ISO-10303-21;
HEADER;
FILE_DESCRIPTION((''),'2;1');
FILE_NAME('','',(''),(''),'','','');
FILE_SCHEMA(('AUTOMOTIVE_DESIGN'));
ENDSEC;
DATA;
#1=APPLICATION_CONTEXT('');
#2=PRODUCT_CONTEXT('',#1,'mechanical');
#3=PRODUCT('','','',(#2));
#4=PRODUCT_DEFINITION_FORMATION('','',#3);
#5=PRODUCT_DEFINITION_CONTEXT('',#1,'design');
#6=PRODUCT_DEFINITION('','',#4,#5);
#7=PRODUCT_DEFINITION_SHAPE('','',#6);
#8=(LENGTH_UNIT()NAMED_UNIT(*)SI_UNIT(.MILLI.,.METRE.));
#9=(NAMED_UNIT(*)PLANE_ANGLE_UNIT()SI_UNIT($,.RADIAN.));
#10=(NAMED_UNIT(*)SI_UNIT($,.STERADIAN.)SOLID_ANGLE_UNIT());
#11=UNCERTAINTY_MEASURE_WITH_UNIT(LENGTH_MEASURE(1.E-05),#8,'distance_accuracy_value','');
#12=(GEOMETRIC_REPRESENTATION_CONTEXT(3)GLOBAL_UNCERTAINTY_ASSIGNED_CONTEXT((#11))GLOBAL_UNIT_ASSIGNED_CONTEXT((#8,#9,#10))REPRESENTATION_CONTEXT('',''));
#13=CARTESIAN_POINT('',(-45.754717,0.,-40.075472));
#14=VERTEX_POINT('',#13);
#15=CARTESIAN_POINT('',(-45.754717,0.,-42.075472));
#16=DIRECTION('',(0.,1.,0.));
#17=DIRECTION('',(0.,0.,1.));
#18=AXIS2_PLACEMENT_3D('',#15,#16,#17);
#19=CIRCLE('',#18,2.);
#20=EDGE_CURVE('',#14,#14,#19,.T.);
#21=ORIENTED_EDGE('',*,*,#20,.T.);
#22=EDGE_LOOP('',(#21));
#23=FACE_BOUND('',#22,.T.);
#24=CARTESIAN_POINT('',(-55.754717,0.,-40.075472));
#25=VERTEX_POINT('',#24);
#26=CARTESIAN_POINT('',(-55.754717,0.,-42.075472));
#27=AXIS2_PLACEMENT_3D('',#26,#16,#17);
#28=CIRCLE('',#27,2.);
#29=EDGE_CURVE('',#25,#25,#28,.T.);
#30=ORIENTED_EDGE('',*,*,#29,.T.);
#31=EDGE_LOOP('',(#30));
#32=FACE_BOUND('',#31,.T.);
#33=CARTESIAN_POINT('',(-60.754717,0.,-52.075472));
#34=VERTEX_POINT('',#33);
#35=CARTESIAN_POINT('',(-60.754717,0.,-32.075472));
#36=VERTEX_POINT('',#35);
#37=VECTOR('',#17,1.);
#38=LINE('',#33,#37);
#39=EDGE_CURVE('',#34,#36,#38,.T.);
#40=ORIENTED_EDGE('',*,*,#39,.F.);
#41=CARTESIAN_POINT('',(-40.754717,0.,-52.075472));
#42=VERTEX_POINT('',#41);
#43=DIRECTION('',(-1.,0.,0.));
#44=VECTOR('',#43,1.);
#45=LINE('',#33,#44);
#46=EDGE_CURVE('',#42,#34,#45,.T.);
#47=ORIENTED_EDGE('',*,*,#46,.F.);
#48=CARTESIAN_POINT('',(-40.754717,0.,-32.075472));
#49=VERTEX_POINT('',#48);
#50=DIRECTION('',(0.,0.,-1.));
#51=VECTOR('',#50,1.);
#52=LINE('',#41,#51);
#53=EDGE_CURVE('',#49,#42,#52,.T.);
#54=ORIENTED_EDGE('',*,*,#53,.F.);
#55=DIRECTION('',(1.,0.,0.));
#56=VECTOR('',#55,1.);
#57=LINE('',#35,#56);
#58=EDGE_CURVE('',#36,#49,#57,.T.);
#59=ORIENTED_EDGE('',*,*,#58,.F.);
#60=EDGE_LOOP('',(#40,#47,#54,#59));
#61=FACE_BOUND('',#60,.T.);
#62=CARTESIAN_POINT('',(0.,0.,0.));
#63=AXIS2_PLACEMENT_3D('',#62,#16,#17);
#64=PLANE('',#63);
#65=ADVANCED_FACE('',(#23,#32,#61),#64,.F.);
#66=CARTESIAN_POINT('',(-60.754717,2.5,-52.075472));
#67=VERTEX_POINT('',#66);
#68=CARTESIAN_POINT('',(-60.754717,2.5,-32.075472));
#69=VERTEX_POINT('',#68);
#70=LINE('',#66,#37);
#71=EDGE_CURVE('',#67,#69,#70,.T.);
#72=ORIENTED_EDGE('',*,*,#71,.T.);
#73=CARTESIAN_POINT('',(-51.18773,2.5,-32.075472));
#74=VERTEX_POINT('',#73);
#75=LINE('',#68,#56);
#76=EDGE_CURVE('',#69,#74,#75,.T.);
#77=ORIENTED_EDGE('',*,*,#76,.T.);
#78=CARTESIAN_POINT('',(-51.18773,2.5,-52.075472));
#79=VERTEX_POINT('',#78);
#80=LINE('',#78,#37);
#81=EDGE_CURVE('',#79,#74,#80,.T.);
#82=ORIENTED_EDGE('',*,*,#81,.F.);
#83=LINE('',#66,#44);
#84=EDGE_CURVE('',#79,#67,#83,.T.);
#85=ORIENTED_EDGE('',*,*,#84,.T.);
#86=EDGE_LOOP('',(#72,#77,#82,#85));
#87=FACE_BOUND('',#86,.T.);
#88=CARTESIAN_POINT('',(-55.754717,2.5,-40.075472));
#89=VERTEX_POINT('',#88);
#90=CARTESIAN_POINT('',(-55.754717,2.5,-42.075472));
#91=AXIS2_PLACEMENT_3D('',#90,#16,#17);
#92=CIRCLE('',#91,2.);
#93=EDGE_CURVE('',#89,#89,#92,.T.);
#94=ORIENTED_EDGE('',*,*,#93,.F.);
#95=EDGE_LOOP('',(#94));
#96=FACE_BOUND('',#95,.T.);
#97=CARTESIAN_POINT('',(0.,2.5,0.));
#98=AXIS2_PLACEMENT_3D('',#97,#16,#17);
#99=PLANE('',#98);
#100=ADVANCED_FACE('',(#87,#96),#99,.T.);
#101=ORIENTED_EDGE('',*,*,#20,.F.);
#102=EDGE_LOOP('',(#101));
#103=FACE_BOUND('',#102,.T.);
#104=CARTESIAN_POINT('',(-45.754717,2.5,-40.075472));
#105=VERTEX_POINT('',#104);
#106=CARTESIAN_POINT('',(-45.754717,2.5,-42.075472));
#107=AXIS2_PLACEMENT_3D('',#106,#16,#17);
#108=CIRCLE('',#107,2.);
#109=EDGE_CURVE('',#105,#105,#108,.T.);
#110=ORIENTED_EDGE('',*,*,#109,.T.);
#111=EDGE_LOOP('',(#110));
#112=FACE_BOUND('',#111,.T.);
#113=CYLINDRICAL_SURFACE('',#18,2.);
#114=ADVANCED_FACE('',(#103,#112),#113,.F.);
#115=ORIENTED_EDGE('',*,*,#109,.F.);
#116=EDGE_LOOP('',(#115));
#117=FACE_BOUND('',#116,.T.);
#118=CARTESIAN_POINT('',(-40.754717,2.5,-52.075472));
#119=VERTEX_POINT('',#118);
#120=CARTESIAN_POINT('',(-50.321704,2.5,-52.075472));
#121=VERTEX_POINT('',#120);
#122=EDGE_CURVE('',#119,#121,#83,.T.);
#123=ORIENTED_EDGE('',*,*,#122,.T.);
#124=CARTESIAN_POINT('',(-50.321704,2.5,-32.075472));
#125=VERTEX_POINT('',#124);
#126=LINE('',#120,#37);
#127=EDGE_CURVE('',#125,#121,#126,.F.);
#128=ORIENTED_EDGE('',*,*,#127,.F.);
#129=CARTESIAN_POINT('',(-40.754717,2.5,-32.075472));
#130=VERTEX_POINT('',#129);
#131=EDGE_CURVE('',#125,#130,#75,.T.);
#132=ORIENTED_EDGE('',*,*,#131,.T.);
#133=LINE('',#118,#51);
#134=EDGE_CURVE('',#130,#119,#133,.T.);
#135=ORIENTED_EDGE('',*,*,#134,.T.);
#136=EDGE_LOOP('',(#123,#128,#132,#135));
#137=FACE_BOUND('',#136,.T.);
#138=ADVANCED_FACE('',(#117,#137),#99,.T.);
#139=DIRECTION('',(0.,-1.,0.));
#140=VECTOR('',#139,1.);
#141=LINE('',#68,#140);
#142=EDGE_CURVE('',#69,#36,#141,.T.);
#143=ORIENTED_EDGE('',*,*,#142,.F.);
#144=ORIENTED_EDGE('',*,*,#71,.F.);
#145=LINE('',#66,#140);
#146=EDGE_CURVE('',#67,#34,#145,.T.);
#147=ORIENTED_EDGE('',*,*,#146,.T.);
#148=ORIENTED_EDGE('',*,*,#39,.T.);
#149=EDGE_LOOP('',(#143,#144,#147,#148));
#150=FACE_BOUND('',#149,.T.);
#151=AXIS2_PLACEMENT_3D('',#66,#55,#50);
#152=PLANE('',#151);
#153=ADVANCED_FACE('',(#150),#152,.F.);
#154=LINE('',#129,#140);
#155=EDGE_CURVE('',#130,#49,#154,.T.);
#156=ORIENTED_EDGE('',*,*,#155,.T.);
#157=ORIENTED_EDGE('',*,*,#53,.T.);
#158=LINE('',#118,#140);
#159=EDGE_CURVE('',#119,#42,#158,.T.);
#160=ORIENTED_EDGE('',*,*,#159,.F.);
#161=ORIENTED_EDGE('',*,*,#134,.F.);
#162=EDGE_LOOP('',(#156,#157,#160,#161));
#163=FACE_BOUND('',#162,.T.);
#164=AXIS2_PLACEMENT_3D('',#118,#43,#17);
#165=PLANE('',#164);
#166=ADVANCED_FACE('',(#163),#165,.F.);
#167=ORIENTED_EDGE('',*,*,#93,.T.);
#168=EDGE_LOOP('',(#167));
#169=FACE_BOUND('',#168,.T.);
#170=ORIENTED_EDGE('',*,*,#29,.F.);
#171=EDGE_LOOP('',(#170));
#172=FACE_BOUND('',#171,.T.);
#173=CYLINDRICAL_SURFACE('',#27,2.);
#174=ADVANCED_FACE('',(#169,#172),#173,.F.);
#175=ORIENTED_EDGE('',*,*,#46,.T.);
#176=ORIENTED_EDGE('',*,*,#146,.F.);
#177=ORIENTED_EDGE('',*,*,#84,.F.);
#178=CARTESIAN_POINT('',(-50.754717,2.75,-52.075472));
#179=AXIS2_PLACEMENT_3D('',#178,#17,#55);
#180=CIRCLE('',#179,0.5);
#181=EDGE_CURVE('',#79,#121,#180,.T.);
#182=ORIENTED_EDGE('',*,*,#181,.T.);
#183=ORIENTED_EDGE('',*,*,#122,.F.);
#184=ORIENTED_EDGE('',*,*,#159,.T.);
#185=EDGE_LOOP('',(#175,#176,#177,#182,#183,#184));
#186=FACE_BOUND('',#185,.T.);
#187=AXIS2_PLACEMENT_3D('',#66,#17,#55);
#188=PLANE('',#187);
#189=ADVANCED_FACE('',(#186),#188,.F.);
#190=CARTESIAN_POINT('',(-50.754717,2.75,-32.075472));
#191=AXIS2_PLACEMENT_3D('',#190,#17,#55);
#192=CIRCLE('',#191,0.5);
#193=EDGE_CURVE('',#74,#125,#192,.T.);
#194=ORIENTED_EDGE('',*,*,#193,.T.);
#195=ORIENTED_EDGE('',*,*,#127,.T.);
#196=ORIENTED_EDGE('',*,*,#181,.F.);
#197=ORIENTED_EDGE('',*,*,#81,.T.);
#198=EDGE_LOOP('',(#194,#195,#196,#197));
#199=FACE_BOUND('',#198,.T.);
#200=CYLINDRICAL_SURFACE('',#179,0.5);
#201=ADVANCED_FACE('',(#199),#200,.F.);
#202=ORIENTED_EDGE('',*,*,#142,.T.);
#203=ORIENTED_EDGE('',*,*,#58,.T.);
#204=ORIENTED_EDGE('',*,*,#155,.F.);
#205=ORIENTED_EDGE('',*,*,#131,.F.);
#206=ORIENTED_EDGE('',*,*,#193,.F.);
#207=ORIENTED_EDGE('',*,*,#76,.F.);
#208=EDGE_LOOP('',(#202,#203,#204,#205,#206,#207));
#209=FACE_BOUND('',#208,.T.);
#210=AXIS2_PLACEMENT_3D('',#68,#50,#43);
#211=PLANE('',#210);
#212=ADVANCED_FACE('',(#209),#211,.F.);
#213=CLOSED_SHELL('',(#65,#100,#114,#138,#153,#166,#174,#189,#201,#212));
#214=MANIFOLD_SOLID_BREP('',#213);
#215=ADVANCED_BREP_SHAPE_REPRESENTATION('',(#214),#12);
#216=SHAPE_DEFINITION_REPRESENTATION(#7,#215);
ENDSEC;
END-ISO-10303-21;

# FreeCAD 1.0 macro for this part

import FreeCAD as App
import Part
import Sketcher

doc = App.newDocument("Part")
body = doc.addObject("PartDesign::Body", "Body")

sketch1 = body.newObject("Sketcher::SketchObject", "Sketch")
sketch1.AttachmentSupport = (doc.getObject("XZ_Plane"), [""])
sketch1.MapMode = "FlatFace"
sketch1.addGeometry([
    Part.LineSegment(App.Vector(-60.754717, -52.075472, 0), App.Vector(-60.754717, -32.075472, 0)),
    Part.LineSegment(App.Vector(-60.754717, -32.075472, 0), App.Vector(-40.754717, -32.075472, 0)),
    Part.LineSegment(App.Vector(-40.754717, -32.075472, 0), App.Vector(-40.754717, -52.075472, 0)),
    Part.LineSegment(App.Vector(-40.754717, -52.075472, 0), App.Vector(-60.754717, -52.075472, 0)),
], False)
sketch1.addConstraint([
    Sketcher.Constraint("Coincident", 0, 2, 1, 1),
    Sketcher.Constraint("Coincident", 1, 2, 2, 1),
    Sketcher.Constraint("Coincident", 2, 2, 3, 1),
    Sketcher.Constraint("Coincident", 3, 2, 0, 1),
    Sketcher.Constraint("Vertical", 0),
    Sketcher.Constraint("Horizontal", 1),
    Sketcher.Constraint("Vertical", 2),
    Sketcher.Constraint("Horizontal", 3),
    Sketcher.Constraint("Equal", 3, 0),
    Sketcher.Constraint("DistanceX", 1, 1, 1, 2, 20.0),
    Sketcher.Constraint("DistanceY", 0, 2, -1, 1, 32.075472),
    Sketcher.Constraint("DistanceX", 0, 2, -1, 1, 60.754717),
])
pad1 = body.newObject("PartDesign::Pad", "Pad")
pad1.Profile = sketch1
pad1.Length = 2.5
pad1.Reversed = True

sketch2 = body.newObject("Sketcher::SketchObject", "Sketch001")
sketch2.AttachmentSupport = (doc.getObject("XY_Plane"), [""])
sketch2.MapMode = "FlatFace"
sketch2.AttachmentOffset = App.Placement(App.Vector(0, 0, -32.075472), App.Rotation())
sketch2.addGeometry(Part.Circle(App.Vector(-50.754717, 2.75, 0), App.Vector(0, 0, 1), 0.5), False)
sketch2.addConstraint([
    Sketcher.Constraint("Diameter", 0, 1.0),
    Sketcher.Constraint("DistanceY", -1, 1, 0, 3, 2.75),
    Sketcher.Constraint("DistanceX", 0, 3, -1, 1, 50.754717),
])
pocket1 = body.newObject("PartDesign::Pocket", "Pocket")
pocket1.Profile = sketch2
pocket1.Type = "ThroughAll"

sketch3 = body.newObject("Sketcher::SketchObject", "Sketch002")
sketch3.AttachmentSupport = (doc.getObject("XZ_Plane"), [""])
sketch3.MapMode = "FlatFace"
sketch3.AttachmentOffset = App.Placement(App.Vector(0, 0, -2.5), App.Rotation())
sketch3.addGeometry([
    Part.Circle(App.Vector(-55.754717, -42.075472, 0), App.Vector(0, 0, 1), 2),
    Part.Circle(App.Vector(-45.754717, -42.075472, 0), App.Vector(0, 0, 1), 2),
], False)
sketch3.addConstraint([
    Sketcher.Constraint("Equal", 0, 1),
    Sketcher.Constraint("Horizontal", 0, 3, 1, 3),
    Sketcher.Constraint("Diameter", 0, 4.0),
    Sketcher.Constraint("DistanceX", 0, 3, 1, 3, 10.0),
    Sketcher.Constraint("DistanceY", 0, 3, -1, 1, 42.075472),
    Sketcher.Constraint("DistanceX", 0, 3, -1, 1, 55.754717),
])
pocket2 = body.newObject("PartDesign::Pocket", "Pocket001")
pocket2.Profile = sketch3
pocket2.Type = "ThroughAll"
pocket2.Reversed = True

doc.recompute()
